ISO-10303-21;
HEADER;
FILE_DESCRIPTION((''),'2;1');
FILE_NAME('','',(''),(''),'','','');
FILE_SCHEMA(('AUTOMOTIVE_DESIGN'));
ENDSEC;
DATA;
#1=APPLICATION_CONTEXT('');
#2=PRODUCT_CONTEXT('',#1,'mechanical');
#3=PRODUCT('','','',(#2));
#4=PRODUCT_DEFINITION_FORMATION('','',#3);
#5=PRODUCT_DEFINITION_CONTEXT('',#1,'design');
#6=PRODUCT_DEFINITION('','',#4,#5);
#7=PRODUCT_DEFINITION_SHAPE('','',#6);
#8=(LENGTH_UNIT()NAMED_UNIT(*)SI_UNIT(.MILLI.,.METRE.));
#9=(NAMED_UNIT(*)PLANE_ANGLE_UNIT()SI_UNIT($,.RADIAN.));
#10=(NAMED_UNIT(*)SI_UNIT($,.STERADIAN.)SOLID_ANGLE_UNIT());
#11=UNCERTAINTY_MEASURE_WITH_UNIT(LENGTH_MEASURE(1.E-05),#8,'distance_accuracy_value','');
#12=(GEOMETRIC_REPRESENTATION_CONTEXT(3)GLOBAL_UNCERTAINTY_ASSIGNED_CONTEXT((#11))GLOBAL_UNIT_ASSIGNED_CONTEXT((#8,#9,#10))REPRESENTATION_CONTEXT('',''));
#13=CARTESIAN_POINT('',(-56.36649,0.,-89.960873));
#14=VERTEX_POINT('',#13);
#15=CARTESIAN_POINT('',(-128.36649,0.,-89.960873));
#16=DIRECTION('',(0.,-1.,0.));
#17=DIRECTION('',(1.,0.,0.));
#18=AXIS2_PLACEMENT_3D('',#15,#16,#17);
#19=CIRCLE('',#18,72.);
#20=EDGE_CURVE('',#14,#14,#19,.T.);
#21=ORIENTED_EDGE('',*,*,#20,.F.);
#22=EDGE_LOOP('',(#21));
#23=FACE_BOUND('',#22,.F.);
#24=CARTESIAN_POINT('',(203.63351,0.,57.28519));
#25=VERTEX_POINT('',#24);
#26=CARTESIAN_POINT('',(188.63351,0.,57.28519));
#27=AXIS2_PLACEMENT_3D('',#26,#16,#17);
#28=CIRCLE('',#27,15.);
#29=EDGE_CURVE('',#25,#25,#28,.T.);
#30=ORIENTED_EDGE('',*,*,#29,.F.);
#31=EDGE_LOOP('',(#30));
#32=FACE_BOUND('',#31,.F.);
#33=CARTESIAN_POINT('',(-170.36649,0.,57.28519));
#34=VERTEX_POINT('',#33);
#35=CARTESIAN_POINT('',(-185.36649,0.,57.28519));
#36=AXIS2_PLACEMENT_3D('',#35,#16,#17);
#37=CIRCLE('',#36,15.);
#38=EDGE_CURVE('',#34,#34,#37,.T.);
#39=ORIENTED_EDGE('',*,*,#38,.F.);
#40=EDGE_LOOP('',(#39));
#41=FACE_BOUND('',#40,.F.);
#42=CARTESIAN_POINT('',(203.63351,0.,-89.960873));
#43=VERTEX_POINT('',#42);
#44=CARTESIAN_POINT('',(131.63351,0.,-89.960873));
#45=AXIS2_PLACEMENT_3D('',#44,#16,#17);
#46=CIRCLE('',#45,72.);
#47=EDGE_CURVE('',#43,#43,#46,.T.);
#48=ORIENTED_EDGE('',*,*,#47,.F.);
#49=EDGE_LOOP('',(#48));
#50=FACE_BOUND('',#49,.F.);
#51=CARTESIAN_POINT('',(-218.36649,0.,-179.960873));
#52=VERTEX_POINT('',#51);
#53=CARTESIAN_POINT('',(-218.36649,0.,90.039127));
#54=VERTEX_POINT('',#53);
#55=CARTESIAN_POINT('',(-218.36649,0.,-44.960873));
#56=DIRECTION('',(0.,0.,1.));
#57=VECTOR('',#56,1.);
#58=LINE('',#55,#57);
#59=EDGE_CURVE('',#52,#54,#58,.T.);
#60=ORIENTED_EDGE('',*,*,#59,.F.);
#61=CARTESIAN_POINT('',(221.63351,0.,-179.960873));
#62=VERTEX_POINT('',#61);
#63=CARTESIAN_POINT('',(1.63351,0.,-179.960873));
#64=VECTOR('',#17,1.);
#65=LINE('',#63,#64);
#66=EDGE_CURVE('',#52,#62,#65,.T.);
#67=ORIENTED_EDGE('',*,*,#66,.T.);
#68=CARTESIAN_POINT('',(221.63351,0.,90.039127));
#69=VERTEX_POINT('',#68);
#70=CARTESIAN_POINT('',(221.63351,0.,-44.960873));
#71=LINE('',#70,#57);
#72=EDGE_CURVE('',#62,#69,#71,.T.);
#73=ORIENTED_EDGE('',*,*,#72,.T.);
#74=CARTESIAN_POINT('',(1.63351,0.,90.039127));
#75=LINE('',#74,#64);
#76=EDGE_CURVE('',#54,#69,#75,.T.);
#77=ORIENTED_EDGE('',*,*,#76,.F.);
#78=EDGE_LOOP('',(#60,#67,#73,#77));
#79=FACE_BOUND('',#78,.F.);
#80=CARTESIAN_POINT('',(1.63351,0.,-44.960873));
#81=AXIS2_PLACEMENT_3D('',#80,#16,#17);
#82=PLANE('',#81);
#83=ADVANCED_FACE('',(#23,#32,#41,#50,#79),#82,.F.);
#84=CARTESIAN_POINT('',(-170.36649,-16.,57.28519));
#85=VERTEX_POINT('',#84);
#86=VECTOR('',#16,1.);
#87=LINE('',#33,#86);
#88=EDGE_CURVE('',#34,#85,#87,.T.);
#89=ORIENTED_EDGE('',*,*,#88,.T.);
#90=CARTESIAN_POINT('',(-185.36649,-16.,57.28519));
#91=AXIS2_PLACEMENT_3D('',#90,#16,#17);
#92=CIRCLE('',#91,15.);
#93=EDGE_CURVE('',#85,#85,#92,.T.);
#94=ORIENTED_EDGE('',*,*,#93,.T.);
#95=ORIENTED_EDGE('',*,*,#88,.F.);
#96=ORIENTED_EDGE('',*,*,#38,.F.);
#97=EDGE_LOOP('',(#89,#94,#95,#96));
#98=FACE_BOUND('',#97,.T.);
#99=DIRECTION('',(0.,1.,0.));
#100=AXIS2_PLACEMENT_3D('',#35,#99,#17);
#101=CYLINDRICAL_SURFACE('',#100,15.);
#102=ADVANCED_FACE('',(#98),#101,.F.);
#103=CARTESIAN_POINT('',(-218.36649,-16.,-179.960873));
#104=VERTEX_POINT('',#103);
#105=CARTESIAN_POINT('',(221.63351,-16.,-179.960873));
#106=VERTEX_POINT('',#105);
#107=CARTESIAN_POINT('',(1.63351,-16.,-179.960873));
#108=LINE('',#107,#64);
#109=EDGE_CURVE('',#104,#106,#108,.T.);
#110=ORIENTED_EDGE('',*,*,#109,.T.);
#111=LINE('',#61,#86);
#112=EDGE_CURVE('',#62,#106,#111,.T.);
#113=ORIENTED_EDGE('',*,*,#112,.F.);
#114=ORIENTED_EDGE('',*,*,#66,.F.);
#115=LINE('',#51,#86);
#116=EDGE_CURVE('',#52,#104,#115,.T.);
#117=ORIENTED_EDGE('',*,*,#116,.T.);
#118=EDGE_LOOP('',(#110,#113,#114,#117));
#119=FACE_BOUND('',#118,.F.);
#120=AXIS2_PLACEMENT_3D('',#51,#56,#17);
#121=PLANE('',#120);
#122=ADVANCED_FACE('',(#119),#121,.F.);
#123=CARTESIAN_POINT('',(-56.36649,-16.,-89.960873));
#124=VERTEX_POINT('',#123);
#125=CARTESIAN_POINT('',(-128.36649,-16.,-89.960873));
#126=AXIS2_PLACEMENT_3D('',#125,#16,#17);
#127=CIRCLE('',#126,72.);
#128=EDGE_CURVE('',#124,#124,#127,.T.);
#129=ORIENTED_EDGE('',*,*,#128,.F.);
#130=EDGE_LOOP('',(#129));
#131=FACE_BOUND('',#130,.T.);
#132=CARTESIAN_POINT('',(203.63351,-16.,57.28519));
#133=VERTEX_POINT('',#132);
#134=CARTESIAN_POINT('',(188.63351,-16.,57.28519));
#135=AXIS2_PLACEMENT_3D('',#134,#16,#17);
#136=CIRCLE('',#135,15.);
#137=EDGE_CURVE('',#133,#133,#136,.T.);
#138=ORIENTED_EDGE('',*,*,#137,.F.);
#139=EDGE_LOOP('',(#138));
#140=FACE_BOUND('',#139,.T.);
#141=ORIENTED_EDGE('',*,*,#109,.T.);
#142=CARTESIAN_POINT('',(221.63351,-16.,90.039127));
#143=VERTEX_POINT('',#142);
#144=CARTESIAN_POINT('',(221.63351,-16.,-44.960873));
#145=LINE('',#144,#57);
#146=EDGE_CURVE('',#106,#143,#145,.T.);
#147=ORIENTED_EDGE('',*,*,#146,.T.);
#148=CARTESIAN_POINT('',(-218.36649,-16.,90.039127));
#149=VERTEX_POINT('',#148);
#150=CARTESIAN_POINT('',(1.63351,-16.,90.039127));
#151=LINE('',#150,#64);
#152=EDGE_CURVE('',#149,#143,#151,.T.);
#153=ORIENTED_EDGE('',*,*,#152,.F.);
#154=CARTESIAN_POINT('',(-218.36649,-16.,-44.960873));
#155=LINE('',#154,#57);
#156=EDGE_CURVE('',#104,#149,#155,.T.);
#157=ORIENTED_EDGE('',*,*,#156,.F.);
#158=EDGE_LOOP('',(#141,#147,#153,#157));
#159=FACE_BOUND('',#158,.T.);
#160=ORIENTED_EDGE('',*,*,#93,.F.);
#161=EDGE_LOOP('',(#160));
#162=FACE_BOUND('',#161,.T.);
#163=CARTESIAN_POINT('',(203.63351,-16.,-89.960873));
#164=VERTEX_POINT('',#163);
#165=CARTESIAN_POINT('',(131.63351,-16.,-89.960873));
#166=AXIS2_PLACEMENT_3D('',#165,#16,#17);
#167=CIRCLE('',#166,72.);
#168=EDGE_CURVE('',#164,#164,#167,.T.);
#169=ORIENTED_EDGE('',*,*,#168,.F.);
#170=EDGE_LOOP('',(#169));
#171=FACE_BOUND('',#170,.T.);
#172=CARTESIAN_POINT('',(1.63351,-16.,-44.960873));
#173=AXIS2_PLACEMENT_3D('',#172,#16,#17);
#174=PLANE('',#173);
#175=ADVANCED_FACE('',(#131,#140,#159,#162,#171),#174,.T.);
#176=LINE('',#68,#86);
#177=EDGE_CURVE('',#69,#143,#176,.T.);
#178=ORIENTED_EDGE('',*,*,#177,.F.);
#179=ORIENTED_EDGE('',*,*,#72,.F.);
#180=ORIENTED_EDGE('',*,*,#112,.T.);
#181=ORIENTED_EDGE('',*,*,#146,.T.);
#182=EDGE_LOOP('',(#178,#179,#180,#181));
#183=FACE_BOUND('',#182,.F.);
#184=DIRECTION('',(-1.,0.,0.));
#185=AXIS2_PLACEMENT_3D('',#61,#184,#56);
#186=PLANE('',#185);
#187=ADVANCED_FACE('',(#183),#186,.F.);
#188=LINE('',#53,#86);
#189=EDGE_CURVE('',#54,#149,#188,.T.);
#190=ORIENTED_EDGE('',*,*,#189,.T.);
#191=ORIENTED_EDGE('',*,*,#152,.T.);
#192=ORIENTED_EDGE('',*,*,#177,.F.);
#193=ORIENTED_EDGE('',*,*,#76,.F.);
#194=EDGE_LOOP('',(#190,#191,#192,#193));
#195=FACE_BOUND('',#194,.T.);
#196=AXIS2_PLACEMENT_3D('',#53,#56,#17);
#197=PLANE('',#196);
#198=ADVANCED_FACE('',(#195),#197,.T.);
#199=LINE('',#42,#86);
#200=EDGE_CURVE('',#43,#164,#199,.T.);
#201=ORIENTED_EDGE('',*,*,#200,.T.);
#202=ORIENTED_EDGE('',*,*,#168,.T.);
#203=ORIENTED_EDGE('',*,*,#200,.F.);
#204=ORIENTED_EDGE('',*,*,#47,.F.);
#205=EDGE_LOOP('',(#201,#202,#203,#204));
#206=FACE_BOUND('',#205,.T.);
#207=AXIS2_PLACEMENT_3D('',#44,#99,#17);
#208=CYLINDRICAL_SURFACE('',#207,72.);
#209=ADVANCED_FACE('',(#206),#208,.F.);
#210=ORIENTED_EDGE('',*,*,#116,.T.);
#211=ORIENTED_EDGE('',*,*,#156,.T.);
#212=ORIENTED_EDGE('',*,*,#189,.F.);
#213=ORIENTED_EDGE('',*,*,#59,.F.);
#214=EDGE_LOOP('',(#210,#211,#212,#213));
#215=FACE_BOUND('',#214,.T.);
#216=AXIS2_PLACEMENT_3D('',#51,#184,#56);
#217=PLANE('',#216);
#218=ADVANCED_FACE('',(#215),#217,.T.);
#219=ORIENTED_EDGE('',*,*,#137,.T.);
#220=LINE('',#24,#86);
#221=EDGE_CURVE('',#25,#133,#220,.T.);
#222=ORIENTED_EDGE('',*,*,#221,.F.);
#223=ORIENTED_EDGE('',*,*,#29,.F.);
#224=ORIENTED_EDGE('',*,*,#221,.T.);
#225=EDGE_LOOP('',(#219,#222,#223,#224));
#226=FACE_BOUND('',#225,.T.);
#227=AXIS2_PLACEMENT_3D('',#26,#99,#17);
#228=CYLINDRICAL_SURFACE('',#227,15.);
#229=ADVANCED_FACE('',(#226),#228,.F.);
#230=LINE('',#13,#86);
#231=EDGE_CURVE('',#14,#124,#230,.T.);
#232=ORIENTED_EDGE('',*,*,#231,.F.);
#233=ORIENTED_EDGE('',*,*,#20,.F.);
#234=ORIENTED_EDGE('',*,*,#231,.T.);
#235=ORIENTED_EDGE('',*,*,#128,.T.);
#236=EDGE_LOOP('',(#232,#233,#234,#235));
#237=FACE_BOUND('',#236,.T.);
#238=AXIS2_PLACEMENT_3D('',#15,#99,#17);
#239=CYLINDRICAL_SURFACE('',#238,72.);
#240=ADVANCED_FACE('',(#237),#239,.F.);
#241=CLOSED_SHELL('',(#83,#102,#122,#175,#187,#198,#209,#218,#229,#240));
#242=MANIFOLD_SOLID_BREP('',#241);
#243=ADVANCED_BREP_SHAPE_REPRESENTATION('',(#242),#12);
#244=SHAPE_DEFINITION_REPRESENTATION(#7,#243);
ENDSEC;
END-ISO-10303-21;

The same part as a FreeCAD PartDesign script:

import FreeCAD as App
import Part
import Sketcher


def add_polygon(sketch, points):
    """Adds a closed chain of lines whose ends are joined by coincident constraints."""
    first, n = sketch.GeometryCount, len(points)
    for a, b in zip(points, points[1:] + points[:1]):
        sketch.addGeometry(Part.LineSegment(App.Vector(*a, 0), App.Vector(*b, 0)), False)
    for i in range(n):
        sketch.addConstraint(Sketcher.Constraint("Coincident", first + i, 2, first + (i + 1) % n, 1))

doc = App.newDocument("Part")
params = doc.addObject("Spreadsheet::Sheet", "Params")
for row, (alias, value) in enumerate([
    ("sketch1_diameter", "144 mm"),
    ("sketch1_diameter2", "30 mm"),
    ("sketch1_width", "440 mm"),
    ("sketch1_height", "270 mm"),
    ("pad1_length", "16 mm"),
], start=1):
    params.set(f"A{row}", alias)
    params.set(f"B{row}", "=" + value)
    params.setAlias(f"B{row}", alias)

body = doc.addObject("PartDesign::Body", "Body")

sketch1 = body.newObject("Sketcher::SketchObject", "Sketch")
sketch1.AttachmentSupport = (doc.getObject("XZ_Plane"), [""])
sketch1.MapMode = "FlatFace"
add_polygon(sketch1, [(-218, 90), (-218, -180), (222, -180), (222, 90)])
sketch1.addGeometry(Part.Circle(App.Vector(-128, -90, 0), App.Vector(0, 0, 1), 72), False)
sketch1.addGeometry(Part.Circle(App.Vector(132, -90, 0), App.Vector(0, 0, 1), 72), False)
sketch1.addGeometry(Part.Circle(App.Vector(-185, 57, 0), App.Vector(0, 0, 1), 15), False)
sketch1.addGeometry(Part.Circle(App.Vector(189, 57, 0), App.Vector(0, 0, 1), 15), False)
sketch1.addConstraint([
    Sketcher.Constraint("Vertical", 0),
    Sketcher.Constraint("Horizontal", 1),
    Sketcher.Constraint("Vertical", 2),
    Sketcher.Constraint("Horizontal", 3),
    Sketcher.Constraint("Equal", 4, 5),
    Sketcher.Constraint("Equal", 6, 7),
    Sketcher.Constraint("Horizontal", 4, 3, 5, 3),
    Sketcher.Constraint("Horizontal", 6, 3, 7, 3),
    Sketcher.Constraint("Diameter", 4, 144.0),
    Sketcher.Constraint("Diameter", 6, 30.0),
    Sketcher.Constraint("DistanceX", 1, 1, 1, 2, 440.0),
    Sketcher.Constraint("DistanceY", 0, 2, 0, 1, 270.0),
    Sketcher.Constraint("DistanceX", 4, 3, 5, 3, 260.0),
    Sketcher.Constraint("DistanceX", 6, 3, 4, 3, 57.0),
    Sketcher.Constraint("DistanceX", 5, 3, 7, 3, 57.0),
    Sketcher.Constraint("DistanceX", 0, 2, 4, 3, 90.0),
    Sketcher.Constraint("DistanceY", 0, 2, 4, 3, 90.0),
    Sketcher.Constraint("DistanceX", 4, 3, -1, 1, 128.36649),
    Sketcher.Constraint("DistanceY", -1, 1, 6, 3, 57.28519),
    Sketcher.Constraint("DistanceY", 4, 3, -1, 1, 89.960873),
])
sketch1.setExpression("Constraints[12]", "Params.sketch1_diameter")
sketch1.setExpression("Constraints[13]", "Params.sketch1_diameter2")
sketch1.setExpression("Constraints[14]", "Params.sketch1_width")
sketch1.setExpression("Constraints[15]", "Params.sketch1_height")
pad1 = body.newObject("PartDesign::Pad", "Pad")
pad1.Profile = sketch1
pad1.setExpression("Length", "Params.pad1_length")

doc.recompute()
